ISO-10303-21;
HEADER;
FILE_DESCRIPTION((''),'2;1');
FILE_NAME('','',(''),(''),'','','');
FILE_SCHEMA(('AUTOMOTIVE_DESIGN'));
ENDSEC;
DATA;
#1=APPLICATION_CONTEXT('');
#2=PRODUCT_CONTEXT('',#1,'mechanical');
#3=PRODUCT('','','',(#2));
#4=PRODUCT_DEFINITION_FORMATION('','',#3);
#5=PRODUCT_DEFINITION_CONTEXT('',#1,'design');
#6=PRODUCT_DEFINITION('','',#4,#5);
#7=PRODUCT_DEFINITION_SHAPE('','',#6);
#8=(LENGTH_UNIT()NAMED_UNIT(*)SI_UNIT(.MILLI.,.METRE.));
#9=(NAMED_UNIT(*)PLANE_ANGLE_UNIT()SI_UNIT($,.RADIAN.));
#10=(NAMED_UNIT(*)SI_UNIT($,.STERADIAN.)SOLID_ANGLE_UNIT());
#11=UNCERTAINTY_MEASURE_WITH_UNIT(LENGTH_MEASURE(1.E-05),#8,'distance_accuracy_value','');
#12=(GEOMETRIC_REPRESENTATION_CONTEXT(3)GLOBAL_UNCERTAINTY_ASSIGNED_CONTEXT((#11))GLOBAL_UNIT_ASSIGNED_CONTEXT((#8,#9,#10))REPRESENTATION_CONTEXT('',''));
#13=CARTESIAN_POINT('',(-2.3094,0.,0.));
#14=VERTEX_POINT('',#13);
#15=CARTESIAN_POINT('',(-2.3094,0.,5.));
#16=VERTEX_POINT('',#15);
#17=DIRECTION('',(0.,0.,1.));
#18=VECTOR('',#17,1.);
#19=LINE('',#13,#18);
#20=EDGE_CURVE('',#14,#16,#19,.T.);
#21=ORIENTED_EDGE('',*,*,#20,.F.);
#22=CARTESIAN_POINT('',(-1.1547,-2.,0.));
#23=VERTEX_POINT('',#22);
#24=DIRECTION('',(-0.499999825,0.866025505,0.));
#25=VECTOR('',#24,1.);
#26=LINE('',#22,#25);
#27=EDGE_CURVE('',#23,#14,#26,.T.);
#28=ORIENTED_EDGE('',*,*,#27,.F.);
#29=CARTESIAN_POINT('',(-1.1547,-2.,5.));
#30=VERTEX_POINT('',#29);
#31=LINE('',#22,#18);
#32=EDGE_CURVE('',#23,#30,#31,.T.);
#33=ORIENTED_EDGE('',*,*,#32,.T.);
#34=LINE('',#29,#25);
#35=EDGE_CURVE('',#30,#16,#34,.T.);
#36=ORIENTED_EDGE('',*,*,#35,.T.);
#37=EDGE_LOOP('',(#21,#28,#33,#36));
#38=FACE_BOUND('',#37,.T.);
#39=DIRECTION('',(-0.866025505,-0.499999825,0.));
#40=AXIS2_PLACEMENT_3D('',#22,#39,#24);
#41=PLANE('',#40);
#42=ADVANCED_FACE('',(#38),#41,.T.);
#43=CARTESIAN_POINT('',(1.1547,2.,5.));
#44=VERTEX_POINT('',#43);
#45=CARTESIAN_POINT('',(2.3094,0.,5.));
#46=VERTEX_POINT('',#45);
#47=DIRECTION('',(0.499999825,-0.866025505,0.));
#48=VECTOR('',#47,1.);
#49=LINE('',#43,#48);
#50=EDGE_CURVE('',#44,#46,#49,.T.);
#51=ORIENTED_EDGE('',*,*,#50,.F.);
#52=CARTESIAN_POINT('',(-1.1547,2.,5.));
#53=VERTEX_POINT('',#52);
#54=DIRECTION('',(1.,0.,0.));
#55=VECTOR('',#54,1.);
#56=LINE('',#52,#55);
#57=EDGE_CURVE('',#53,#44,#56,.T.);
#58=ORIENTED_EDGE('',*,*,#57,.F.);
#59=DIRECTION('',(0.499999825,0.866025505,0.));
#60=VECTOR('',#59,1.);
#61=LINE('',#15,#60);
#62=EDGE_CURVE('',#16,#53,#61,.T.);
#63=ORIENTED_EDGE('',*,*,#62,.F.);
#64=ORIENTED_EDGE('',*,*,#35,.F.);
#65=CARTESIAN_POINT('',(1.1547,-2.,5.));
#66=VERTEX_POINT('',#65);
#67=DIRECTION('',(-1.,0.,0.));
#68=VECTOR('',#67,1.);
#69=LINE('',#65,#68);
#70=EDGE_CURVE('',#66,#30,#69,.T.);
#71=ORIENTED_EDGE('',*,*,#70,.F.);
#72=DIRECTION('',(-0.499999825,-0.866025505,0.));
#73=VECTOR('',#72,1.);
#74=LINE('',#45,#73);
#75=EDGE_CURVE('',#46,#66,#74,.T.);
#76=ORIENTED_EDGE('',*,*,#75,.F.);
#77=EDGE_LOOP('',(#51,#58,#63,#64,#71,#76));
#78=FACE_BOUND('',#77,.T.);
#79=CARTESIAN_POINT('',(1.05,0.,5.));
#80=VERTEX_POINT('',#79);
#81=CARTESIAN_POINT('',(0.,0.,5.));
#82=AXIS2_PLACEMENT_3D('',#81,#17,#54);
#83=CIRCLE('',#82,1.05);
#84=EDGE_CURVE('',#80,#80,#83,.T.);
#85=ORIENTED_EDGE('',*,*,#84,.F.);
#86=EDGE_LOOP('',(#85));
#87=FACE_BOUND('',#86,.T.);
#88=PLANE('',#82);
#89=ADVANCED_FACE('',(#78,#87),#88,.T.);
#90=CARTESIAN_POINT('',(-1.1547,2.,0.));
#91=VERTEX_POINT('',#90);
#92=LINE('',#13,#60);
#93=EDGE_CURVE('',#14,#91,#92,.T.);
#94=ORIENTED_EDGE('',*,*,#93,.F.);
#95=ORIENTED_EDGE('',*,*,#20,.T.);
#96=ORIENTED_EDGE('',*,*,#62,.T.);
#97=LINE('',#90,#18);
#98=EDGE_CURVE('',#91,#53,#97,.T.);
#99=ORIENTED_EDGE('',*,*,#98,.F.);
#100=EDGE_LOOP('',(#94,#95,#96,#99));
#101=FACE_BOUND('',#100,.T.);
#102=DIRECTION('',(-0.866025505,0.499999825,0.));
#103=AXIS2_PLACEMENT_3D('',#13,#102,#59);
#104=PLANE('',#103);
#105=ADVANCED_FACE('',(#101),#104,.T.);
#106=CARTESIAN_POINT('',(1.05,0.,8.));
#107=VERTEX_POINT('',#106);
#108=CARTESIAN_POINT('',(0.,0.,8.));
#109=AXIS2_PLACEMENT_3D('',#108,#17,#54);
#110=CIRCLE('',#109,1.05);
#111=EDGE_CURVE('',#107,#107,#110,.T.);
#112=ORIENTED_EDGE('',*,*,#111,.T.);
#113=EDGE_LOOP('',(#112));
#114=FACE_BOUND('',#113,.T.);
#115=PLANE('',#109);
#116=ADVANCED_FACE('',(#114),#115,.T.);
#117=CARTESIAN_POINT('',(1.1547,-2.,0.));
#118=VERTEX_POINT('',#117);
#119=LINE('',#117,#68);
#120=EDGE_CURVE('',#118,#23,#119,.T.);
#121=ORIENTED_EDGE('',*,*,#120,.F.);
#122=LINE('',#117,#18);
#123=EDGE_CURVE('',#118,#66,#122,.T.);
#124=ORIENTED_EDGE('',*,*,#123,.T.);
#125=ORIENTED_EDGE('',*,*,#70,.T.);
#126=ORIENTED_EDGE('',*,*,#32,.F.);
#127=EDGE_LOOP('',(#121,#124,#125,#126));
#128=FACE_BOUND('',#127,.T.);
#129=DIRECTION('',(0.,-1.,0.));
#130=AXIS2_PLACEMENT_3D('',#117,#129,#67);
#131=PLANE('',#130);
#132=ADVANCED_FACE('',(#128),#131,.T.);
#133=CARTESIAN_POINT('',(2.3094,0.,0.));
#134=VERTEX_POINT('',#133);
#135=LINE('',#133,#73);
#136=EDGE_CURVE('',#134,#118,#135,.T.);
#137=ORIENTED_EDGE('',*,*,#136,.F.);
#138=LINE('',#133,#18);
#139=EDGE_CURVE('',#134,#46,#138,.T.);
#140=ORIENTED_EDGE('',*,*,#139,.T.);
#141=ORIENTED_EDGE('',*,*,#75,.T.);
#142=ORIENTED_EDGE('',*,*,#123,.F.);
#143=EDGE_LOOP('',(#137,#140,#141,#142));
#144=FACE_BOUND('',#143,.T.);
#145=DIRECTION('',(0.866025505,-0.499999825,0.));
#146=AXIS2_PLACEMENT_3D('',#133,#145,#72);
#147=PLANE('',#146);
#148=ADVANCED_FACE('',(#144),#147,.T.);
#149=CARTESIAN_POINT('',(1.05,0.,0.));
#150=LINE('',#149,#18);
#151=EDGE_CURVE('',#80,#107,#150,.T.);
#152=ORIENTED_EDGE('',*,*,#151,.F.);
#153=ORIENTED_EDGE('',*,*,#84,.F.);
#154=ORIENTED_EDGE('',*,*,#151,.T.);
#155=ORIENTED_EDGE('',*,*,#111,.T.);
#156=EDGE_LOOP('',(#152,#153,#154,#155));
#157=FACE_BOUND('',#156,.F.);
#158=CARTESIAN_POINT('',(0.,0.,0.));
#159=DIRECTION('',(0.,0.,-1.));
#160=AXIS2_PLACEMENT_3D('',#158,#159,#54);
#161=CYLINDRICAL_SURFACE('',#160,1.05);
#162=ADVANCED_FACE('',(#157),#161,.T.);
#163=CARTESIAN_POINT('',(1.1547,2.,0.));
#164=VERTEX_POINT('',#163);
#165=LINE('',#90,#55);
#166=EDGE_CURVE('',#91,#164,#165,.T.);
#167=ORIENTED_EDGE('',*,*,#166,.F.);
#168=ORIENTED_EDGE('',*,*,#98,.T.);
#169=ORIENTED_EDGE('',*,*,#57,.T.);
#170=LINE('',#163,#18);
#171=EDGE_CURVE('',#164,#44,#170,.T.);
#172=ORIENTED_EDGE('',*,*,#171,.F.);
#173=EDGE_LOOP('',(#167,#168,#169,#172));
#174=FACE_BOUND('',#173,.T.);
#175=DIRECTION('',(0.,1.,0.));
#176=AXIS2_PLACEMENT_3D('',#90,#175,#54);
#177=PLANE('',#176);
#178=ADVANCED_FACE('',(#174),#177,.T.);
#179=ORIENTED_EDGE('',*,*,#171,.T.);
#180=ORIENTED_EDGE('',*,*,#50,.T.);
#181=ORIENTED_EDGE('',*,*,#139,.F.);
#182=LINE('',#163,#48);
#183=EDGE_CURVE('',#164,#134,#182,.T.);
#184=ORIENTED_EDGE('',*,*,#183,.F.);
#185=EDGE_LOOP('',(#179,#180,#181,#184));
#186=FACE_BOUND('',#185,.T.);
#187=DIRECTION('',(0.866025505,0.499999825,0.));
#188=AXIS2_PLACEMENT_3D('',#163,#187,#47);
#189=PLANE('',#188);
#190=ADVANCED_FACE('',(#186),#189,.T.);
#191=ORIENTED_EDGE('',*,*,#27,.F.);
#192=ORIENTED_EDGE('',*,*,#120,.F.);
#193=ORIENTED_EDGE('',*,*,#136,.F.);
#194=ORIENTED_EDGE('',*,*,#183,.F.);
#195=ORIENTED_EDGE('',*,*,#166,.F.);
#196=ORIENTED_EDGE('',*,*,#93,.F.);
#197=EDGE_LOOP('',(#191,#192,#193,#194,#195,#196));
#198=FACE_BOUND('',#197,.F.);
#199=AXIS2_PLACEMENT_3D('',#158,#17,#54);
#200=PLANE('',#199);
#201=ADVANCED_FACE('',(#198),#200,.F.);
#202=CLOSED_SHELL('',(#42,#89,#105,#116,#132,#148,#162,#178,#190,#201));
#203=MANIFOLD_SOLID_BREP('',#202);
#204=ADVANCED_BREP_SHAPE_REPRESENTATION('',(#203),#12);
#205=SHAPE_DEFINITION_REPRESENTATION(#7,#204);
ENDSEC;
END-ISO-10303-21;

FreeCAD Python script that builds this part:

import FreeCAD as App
import Part
import Sketcher
Q = App.Units.Quantity


def add_polygon(sketch, points):
    """Adds a closed chain of lines whose ends are joined by coincident constraints."""
    first, n = sketch.GeometryCount, len(points)
    for a, b in zip(points, points[1:] + points[:1]):
        sketch.addGeometry(Part.LineSegment(App.Vector(*a, 0), App.Vector(*b, 0)), False)
    for i in range(n):
        sketch.addConstraint(Sketcher.Constraint("Coincident", first + i, 2, first + (i + 1) % n, 1))

doc = App.newDocument("Part")
body = doc.addObject("PartDesign::Body", "Body")

# Sketch on XY plane
sketch1 = doc.addObject("Sketcher::SketchObject", "Sketch")
body.addObject(sketch1)
sketch1.AttachmentSupport = (doc.XY_Plane, [""])
sketch1.MapMode = "FlatFace"
sketch1.addGeometry(Part.Circle(App.Vector(0, 0, 0), App.Vector(0, 0, 1), 1.1), False)
sketch1.addConstraint(Sketcher.Constraint("Coincident", 0, 3, -1, 1))
sketch1.addConstraint(Sketcher.Constraint("Diameter", 0, Q("2.1 mm")))
pad1 = doc.addObject("PartDesign::Pad", "Pad")
body.addObject(pad1)
pad1.Profile = sketch1
pad1.Length = 8

# Sketch on XY plane
sketch2 = doc.addObject("Sketcher::SketchObject", "Sketch001")
body.addObject(sketch2)
sketch2.AttachmentSupport = (doc.XY_Plane, [""])
sketch2.MapMode = "FlatFace"
add_polygon(sketch2, [(-1.2, -2), (1.2, -2), (2.3, 0), (1.2, 2), (-1.2, 2), (-2.3, 0)])  # lines 0-5
sketch2.addGeometry(Part.Circle(App.Vector(0, 0, 0), App.Vector(0, 0, 1), 1.1), False)  # 6
sketch2.addConstraint(Sketcher.Constraint("Horizontal", 0))
sketch2.addConstraint(Sketcher.Constraint("Horizontal", 3))
sketch2.addConstraint(Sketcher.Constraint("Coincident", 6, 3, -1, 1))
sketch2.addConstraint(Sketcher.Constraint("Symmetric", 0, 2, 3, 2, -1, 1))
sketch2.addConstraint(Sketcher.Constraint("Symmetric", 1, 2, 4, 2, -1, 1))
sketch2.addConstraint(Sketcher.Constraint("PointOnObject", 1, 2, -1))
sketch2.addConstraint(Sketcher.Constraint("Parallel", 2, 5))
sketch2.addConstraint(Sketcher.Constraint("Vertical", 0, 2, 2, 2))
sketch2.addConstraint(Sketcher.Constraint("Diameter", 6, Q("2.1 mm")))
sketch2.addConstraint(Sketcher.Constraint("DistanceY", 0, 2, 2, 2, Q("4 mm")))
sketch2.addConstraint(Sketcher.Constraint("Angle", 1, Q("60 deg")))
sketch2.addConstraint(Sketcher.Constraint("DistanceX", 0, 1, 0, 2, Q("2.3094 mm")))
pad2 = doc.addObject("PartDesign::Pad", "Pad001")
body.addObject(pad2)
pad2.Profile = sketch2
pad2.Length = 5

doc.recompute()
